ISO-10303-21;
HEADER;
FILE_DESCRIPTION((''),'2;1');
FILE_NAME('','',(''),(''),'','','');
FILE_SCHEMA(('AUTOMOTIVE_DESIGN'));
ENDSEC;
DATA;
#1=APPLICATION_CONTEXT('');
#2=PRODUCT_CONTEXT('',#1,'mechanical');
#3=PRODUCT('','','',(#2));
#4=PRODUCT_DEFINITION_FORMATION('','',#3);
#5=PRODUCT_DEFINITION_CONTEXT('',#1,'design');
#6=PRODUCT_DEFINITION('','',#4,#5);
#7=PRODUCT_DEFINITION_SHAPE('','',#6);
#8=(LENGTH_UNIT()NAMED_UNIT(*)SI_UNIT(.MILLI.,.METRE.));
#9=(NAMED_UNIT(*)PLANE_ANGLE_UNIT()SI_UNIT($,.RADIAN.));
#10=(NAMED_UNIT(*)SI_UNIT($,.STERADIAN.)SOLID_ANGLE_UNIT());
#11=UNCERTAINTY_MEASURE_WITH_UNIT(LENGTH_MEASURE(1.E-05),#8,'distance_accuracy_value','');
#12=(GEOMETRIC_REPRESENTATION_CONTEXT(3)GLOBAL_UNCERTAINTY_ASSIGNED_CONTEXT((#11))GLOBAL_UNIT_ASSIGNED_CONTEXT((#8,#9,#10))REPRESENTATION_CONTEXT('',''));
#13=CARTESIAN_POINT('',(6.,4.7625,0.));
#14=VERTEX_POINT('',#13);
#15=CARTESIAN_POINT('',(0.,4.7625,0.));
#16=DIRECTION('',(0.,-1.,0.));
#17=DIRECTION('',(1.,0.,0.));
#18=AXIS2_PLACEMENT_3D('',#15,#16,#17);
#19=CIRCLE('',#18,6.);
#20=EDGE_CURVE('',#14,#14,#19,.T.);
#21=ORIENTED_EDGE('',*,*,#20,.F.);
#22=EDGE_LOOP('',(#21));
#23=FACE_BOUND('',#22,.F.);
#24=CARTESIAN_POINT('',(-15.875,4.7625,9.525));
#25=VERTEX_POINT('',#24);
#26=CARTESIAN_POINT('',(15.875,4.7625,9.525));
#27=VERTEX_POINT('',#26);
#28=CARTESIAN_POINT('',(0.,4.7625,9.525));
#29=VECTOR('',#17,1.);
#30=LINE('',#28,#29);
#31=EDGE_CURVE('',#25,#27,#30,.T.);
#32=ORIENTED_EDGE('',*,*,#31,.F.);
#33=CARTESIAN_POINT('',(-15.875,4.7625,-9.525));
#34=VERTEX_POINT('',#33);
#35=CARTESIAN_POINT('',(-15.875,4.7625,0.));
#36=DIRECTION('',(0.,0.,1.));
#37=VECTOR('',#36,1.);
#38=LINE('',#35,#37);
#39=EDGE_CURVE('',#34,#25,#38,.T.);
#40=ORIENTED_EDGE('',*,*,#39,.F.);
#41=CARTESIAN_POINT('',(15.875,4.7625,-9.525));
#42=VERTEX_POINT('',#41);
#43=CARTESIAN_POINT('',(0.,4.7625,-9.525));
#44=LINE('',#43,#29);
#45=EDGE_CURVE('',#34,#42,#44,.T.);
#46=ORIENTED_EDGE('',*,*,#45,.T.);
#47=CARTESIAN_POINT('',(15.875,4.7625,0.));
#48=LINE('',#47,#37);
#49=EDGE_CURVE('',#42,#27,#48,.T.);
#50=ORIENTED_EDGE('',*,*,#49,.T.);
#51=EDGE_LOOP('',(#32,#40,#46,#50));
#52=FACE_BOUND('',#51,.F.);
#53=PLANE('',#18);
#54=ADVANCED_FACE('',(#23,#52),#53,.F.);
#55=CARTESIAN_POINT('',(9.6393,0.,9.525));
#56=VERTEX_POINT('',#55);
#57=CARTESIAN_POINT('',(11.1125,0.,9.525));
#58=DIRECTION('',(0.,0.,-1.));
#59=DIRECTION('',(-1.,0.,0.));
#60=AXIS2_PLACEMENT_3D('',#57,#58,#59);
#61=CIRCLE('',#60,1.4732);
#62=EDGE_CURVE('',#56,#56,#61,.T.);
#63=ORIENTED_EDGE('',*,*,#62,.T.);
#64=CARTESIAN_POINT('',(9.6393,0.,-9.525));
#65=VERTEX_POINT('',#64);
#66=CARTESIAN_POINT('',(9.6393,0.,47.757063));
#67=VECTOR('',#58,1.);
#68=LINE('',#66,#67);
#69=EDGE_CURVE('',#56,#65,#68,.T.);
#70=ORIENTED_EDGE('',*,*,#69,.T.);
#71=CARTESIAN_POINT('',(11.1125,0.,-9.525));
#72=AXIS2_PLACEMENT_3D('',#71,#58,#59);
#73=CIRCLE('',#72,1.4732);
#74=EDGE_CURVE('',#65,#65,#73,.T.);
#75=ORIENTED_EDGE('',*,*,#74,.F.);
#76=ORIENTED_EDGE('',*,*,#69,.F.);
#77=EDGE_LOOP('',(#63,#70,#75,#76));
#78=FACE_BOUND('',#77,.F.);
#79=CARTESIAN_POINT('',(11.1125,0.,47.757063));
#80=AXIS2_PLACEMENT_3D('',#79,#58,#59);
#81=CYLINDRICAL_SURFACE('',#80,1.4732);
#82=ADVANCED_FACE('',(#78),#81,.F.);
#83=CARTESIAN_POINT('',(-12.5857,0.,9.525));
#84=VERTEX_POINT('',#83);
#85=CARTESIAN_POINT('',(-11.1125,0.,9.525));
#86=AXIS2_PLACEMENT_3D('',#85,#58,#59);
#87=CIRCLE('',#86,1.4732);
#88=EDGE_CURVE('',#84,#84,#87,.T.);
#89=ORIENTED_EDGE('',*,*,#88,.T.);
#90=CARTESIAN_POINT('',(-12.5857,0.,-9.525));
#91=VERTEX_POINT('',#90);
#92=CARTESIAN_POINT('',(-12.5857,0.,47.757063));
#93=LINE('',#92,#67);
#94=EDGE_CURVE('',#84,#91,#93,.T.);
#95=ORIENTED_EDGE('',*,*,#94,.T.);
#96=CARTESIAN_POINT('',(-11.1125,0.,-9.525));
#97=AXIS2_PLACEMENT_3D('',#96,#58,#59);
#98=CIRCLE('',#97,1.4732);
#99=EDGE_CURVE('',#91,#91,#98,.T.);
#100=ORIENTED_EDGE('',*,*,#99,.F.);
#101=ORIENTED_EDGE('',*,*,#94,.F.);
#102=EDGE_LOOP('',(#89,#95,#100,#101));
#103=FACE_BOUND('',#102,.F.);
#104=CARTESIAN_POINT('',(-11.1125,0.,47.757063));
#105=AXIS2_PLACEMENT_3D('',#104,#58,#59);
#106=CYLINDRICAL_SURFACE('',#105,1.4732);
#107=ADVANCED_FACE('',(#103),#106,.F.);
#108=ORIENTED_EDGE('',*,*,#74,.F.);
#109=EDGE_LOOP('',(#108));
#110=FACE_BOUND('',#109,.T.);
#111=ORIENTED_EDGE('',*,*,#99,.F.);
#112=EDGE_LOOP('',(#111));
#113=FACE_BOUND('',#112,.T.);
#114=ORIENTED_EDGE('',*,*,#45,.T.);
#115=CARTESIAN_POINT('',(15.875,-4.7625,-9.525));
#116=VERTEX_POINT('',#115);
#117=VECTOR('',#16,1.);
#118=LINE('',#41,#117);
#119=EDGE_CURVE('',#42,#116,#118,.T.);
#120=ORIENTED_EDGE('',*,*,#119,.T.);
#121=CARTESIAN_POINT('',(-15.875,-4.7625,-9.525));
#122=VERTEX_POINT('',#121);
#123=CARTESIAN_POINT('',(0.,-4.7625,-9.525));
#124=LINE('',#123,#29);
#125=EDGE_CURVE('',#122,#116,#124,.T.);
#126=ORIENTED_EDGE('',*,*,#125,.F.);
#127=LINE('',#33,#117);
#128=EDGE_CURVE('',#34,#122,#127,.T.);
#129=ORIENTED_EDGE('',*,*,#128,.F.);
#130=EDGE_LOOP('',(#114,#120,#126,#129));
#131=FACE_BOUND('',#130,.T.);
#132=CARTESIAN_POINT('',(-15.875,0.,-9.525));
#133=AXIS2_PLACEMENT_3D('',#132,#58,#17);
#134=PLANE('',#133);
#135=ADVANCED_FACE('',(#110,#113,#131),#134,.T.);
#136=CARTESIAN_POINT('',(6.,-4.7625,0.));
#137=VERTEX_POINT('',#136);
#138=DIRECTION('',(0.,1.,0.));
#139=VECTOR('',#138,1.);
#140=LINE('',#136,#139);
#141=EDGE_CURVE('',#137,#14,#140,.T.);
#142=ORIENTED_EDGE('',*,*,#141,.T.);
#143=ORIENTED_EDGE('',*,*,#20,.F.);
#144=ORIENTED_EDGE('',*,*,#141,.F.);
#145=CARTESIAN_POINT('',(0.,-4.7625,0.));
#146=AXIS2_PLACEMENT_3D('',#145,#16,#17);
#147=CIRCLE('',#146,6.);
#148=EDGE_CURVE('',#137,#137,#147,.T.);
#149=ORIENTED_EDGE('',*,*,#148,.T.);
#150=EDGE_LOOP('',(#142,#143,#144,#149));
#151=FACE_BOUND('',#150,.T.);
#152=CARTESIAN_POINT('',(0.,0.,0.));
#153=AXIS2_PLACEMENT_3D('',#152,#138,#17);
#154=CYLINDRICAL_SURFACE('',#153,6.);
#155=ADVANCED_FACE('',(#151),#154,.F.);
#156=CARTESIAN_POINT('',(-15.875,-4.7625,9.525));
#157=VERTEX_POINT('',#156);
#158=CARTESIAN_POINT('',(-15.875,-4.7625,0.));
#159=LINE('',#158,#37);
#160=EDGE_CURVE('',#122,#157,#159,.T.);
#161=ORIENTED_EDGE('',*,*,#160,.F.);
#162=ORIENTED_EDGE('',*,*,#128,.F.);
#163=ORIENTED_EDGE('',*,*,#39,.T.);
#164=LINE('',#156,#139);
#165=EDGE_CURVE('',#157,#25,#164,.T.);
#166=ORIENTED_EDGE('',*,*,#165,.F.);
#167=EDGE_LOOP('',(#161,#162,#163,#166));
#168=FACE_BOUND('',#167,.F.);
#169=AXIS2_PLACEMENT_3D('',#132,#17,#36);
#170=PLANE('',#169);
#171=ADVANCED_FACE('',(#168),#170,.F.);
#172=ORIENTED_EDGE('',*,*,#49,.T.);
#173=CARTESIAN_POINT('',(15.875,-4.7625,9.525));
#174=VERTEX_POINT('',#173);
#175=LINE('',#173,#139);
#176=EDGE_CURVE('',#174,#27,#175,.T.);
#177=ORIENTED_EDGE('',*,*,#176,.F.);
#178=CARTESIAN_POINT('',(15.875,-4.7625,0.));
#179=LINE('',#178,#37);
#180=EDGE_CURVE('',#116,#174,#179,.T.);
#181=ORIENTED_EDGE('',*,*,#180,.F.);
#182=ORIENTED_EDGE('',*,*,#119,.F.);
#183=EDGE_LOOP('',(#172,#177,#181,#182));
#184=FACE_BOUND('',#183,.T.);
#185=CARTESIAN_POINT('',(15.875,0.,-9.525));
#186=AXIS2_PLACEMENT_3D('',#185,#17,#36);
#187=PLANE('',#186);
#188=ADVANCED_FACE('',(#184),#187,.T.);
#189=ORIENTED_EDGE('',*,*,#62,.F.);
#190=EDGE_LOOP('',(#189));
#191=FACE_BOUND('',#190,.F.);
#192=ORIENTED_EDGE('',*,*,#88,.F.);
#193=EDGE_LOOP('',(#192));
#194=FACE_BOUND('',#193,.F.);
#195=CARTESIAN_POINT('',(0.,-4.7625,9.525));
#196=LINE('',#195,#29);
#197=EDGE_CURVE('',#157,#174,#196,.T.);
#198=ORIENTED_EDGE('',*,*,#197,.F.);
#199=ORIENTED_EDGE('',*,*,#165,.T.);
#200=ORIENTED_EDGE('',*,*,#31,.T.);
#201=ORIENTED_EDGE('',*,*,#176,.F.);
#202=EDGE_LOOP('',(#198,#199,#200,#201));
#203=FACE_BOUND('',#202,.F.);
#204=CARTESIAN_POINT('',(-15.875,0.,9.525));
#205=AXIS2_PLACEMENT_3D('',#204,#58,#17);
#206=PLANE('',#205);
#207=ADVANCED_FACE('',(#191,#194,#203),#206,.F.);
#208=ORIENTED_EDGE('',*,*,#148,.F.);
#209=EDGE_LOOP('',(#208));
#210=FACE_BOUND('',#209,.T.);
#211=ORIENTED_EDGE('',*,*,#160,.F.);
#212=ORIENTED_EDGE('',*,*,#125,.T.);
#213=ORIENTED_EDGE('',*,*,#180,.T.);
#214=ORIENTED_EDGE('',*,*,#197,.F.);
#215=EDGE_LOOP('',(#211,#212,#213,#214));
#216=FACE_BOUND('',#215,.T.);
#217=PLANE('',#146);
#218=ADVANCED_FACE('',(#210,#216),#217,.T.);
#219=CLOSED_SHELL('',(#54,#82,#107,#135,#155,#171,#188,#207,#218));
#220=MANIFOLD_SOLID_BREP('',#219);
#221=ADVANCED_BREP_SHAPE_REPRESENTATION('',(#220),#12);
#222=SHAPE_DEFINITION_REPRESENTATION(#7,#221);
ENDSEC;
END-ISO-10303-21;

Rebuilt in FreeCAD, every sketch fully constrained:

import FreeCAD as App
import Part
import Sketcher
from FreeCAD import Vector
Q = App.Units.Quantity

doc = App.newDocument("Part")
body = doc.addObject("PartDesign::Body", "Body")

# Sketch on XZ plane
sketch1 = body.newObject("Sketcher::SketchObject", "Sketch")
sketch1.AttachmentSupport = (doc.getObject("XZ_Plane"), [""])
sketch1.MapMode = "FlatFace"
sketch1.addGeometry(Part.LineSegment(Vector(-16, 10, 0), Vector(-16, -10, 0)), False)
sketch1.addGeometry(Part.LineSegment(Vector(-16, -10, 0), Vector(16, -10, 0)), False)
sketch1.addGeometry(Part.LineSegment(Vector(16, -10, 0), Vector(16, 10, 0)), False)
sketch1.addGeometry(Part.LineSegment(Vector(16, 10, 0), Vector(-16, 10, 0)), False)
sketch1.addGeometry(Part.Circle(Vector(0, 0, 0), Vector(0, 0, 1), 6), False)
sketch1.addConstraint(Sketcher.Constraint("Coincident", 0, 2, 1, 1))
sketch1.addConstraint(Sketcher.Constraint("Coincident", 1, 2, 2, 1))
sketch1.addConstraint(Sketcher.Constraint("Coincident", 2, 2, 3, 1))
sketch1.addConstraint(Sketcher.Constraint("Coincident", 3, 2, 0, 1))
sketch1.addConstraint(Sketcher.Constraint("Vertical", 0))
sketch1.addConstraint(Sketcher.Constraint("Horizontal", 1))
sketch1.addConstraint(Sketcher.Constraint("Vertical", 2))
sketch1.addConstraint(Sketcher.Constraint("Horizontal", 3))
sketch1.addConstraint(Sketcher.Constraint("Coincident", 4, 3, -1, 1))
sketch1.addConstraint(Sketcher.Constraint("Symmetric", 0, 2, 2, 2, -1, 1))
sketch1.addConstraint(Sketcher.Constraint("DistanceX", 1, 1, 1, 2, Q("1.25 in")))
sketch1.addConstraint(Sketcher.Constraint("DistanceY", 0, 2, 0, 1, Q("0.75 in")))
sketch1.addConstraint(Sketcher.Constraint("Diameter", 4, 12.0))
pad1 = body.newObject("PartDesign::Pad", "Pad")
pad1.Profile = sketch1
pad1.Length = Q("0.375 in")
pad1.Midplane = True

# Sketch on XY plane
sketch2 = body.newObject("Sketcher::SketchObject", "Sketch001")
sketch2.AttachmentSupport = (doc.getObject("XY_Plane"), [""])
sketch2.MapMode = "FlatFace"
sketch2.AttachmentOffset = App.Placement(Vector(0, 0, 0.375 * 25.4), App.Rotation())
sketch2.addGeometry(Part.Circle(Vector(-11.1, 0, 0), Vector(0, 0, 1), 1.5), False)
sketch2.addGeometry(Part.Circle(Vector(11.1, 0, 0), Vector(0, 0, 1), 1.5), False)
sketch2.addConstraint(Sketcher.Constraint("Equal", 0, 1))
sketch2.addConstraint(Sketcher.Constraint("Symmetric", 0, 3, 1, 3, -1, 1))
sketch2.addConstraint(Sketcher.Constraint("PointOnObject", 0, 3, -1))
sketch2.addConstraint(Sketcher.Constraint("Diameter", 0, Q("0.116 in")))
sketch2.addConstraint(Sketcher.Constraint("DistanceX", 0, 3, -1, 1, Q("0.4375 in")))
doc.recompute()
hole = body.newObject("PartDesign::Hole", "Hole")
hole.Profile = sketch2
hole.ThreadType = "None"
hole.Diameter = Q("0.116 in")
hole.DepthType = "ThroughAll"

doc.recompute()
